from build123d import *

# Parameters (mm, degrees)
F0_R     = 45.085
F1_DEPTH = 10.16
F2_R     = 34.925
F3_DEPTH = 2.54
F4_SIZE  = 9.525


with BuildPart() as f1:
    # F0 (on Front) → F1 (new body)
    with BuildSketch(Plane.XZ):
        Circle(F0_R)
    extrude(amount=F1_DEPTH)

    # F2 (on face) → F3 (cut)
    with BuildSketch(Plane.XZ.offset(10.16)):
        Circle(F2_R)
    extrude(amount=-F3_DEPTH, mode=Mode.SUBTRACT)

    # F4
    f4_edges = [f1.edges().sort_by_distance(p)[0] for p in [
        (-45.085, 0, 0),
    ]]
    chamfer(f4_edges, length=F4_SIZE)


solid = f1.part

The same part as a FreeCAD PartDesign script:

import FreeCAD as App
import Part
import Sketcher

V = App.Vector
Q = App.Units.Quantity


def edges_at(feature, points):
    """Names of the edges that pass closest to the given points."""
    edges = feature.Shape.Edges
    near = lambda p: min(range(len(edges)), key=lambda i: edges[i].distToShape(Part.Vertex(*p))[0])
    return sorted({f"Edge{near(p) + 1}" for p in points})

doc = App.newDocument("Part")
params = doc.addObject("Spreadsheet::Sheet", "Params")
for row, (alias, value) in enumerate([
    ("sketch1_diameter", "3.55 in"),
    ("pad1_length", "0.4 in"),
    ("sketch2_diameter", "2.75 in"),
    ("pocket1_length", "0.1 in"),
    ("chamfer_size", "0.375 in"),
], start=1):
    params.set(f"A{row}", alias)
    params.set(f"B{row}", "=" + value)
    params.setAlias(f"B{row}", alias)

body = doc.addObject("PartDesign::Body", "Body")

sketch1 = body.newObject("Sketcher::SketchObject", "Sketch")
sketch1.AttachmentSupport = (doc.getObject("XZ_Plane"), [""])
sketch1.MapMode = "FlatFace"
sketch1.addGeometry(Part.Circle(V(0, 0, 0), V(0, 0, 1), 45.085), False)
sketch1.addConstraint(Sketcher.Constraint("Coincident", 0, 3, -1, 1))
sketch1.addConstraint(Sketcher.Constraint("Diameter", 0, Q("3.55 in")))
sketch1.setExpression("Constraints[1]", "Params.sketch1_diameter")
pad1 = body.newObject("PartDesign::Pad", "Pad")
pad1.Profile = sketch1
pad1.setExpression("Length", "Params.pad1_length")

sketch2 = body.newObject("Sketcher::SketchObject", "Sketch001")
sketch2.AttachmentSupport = (doc.getObject("XZ_Plane"), [""])
sketch2.MapMode = "FlatFace"
sketch2.AttachmentOffset = App.Placement(V(0, 0, 0.4 * 25.4), App.Rotation())
sketch2.addGeometry(Part.Circle(V(0, 0, 0), V(0, 0, 1), 34.925), False)
sketch2.addConstraint(Sketcher.Constraint("Coincident", 0, 3, -1, 1))
sketch2.addConstraint(Sketcher.Constraint("Diameter", 0, Q("2.75 in")))
sketch2.setExpression("Constraints[1]", "Params.sketch2_diameter")
pocket1 = body.newObject("PartDesign::Pocket", "Pocket")
pocket1.Profile = sketch2
pocket1.setExpression("Length", "Params.pocket1_length")
doc.recompute()

chamfer = body.newObject("PartDesign::Chamfer", "Chamfer")
chamfer.Base = (pocket1, edges_at(pocket1, [(-45.085, 0, 0)]))
chamfer.setExpression("Size", "Params.chamfer_size")

doc.recompute()
